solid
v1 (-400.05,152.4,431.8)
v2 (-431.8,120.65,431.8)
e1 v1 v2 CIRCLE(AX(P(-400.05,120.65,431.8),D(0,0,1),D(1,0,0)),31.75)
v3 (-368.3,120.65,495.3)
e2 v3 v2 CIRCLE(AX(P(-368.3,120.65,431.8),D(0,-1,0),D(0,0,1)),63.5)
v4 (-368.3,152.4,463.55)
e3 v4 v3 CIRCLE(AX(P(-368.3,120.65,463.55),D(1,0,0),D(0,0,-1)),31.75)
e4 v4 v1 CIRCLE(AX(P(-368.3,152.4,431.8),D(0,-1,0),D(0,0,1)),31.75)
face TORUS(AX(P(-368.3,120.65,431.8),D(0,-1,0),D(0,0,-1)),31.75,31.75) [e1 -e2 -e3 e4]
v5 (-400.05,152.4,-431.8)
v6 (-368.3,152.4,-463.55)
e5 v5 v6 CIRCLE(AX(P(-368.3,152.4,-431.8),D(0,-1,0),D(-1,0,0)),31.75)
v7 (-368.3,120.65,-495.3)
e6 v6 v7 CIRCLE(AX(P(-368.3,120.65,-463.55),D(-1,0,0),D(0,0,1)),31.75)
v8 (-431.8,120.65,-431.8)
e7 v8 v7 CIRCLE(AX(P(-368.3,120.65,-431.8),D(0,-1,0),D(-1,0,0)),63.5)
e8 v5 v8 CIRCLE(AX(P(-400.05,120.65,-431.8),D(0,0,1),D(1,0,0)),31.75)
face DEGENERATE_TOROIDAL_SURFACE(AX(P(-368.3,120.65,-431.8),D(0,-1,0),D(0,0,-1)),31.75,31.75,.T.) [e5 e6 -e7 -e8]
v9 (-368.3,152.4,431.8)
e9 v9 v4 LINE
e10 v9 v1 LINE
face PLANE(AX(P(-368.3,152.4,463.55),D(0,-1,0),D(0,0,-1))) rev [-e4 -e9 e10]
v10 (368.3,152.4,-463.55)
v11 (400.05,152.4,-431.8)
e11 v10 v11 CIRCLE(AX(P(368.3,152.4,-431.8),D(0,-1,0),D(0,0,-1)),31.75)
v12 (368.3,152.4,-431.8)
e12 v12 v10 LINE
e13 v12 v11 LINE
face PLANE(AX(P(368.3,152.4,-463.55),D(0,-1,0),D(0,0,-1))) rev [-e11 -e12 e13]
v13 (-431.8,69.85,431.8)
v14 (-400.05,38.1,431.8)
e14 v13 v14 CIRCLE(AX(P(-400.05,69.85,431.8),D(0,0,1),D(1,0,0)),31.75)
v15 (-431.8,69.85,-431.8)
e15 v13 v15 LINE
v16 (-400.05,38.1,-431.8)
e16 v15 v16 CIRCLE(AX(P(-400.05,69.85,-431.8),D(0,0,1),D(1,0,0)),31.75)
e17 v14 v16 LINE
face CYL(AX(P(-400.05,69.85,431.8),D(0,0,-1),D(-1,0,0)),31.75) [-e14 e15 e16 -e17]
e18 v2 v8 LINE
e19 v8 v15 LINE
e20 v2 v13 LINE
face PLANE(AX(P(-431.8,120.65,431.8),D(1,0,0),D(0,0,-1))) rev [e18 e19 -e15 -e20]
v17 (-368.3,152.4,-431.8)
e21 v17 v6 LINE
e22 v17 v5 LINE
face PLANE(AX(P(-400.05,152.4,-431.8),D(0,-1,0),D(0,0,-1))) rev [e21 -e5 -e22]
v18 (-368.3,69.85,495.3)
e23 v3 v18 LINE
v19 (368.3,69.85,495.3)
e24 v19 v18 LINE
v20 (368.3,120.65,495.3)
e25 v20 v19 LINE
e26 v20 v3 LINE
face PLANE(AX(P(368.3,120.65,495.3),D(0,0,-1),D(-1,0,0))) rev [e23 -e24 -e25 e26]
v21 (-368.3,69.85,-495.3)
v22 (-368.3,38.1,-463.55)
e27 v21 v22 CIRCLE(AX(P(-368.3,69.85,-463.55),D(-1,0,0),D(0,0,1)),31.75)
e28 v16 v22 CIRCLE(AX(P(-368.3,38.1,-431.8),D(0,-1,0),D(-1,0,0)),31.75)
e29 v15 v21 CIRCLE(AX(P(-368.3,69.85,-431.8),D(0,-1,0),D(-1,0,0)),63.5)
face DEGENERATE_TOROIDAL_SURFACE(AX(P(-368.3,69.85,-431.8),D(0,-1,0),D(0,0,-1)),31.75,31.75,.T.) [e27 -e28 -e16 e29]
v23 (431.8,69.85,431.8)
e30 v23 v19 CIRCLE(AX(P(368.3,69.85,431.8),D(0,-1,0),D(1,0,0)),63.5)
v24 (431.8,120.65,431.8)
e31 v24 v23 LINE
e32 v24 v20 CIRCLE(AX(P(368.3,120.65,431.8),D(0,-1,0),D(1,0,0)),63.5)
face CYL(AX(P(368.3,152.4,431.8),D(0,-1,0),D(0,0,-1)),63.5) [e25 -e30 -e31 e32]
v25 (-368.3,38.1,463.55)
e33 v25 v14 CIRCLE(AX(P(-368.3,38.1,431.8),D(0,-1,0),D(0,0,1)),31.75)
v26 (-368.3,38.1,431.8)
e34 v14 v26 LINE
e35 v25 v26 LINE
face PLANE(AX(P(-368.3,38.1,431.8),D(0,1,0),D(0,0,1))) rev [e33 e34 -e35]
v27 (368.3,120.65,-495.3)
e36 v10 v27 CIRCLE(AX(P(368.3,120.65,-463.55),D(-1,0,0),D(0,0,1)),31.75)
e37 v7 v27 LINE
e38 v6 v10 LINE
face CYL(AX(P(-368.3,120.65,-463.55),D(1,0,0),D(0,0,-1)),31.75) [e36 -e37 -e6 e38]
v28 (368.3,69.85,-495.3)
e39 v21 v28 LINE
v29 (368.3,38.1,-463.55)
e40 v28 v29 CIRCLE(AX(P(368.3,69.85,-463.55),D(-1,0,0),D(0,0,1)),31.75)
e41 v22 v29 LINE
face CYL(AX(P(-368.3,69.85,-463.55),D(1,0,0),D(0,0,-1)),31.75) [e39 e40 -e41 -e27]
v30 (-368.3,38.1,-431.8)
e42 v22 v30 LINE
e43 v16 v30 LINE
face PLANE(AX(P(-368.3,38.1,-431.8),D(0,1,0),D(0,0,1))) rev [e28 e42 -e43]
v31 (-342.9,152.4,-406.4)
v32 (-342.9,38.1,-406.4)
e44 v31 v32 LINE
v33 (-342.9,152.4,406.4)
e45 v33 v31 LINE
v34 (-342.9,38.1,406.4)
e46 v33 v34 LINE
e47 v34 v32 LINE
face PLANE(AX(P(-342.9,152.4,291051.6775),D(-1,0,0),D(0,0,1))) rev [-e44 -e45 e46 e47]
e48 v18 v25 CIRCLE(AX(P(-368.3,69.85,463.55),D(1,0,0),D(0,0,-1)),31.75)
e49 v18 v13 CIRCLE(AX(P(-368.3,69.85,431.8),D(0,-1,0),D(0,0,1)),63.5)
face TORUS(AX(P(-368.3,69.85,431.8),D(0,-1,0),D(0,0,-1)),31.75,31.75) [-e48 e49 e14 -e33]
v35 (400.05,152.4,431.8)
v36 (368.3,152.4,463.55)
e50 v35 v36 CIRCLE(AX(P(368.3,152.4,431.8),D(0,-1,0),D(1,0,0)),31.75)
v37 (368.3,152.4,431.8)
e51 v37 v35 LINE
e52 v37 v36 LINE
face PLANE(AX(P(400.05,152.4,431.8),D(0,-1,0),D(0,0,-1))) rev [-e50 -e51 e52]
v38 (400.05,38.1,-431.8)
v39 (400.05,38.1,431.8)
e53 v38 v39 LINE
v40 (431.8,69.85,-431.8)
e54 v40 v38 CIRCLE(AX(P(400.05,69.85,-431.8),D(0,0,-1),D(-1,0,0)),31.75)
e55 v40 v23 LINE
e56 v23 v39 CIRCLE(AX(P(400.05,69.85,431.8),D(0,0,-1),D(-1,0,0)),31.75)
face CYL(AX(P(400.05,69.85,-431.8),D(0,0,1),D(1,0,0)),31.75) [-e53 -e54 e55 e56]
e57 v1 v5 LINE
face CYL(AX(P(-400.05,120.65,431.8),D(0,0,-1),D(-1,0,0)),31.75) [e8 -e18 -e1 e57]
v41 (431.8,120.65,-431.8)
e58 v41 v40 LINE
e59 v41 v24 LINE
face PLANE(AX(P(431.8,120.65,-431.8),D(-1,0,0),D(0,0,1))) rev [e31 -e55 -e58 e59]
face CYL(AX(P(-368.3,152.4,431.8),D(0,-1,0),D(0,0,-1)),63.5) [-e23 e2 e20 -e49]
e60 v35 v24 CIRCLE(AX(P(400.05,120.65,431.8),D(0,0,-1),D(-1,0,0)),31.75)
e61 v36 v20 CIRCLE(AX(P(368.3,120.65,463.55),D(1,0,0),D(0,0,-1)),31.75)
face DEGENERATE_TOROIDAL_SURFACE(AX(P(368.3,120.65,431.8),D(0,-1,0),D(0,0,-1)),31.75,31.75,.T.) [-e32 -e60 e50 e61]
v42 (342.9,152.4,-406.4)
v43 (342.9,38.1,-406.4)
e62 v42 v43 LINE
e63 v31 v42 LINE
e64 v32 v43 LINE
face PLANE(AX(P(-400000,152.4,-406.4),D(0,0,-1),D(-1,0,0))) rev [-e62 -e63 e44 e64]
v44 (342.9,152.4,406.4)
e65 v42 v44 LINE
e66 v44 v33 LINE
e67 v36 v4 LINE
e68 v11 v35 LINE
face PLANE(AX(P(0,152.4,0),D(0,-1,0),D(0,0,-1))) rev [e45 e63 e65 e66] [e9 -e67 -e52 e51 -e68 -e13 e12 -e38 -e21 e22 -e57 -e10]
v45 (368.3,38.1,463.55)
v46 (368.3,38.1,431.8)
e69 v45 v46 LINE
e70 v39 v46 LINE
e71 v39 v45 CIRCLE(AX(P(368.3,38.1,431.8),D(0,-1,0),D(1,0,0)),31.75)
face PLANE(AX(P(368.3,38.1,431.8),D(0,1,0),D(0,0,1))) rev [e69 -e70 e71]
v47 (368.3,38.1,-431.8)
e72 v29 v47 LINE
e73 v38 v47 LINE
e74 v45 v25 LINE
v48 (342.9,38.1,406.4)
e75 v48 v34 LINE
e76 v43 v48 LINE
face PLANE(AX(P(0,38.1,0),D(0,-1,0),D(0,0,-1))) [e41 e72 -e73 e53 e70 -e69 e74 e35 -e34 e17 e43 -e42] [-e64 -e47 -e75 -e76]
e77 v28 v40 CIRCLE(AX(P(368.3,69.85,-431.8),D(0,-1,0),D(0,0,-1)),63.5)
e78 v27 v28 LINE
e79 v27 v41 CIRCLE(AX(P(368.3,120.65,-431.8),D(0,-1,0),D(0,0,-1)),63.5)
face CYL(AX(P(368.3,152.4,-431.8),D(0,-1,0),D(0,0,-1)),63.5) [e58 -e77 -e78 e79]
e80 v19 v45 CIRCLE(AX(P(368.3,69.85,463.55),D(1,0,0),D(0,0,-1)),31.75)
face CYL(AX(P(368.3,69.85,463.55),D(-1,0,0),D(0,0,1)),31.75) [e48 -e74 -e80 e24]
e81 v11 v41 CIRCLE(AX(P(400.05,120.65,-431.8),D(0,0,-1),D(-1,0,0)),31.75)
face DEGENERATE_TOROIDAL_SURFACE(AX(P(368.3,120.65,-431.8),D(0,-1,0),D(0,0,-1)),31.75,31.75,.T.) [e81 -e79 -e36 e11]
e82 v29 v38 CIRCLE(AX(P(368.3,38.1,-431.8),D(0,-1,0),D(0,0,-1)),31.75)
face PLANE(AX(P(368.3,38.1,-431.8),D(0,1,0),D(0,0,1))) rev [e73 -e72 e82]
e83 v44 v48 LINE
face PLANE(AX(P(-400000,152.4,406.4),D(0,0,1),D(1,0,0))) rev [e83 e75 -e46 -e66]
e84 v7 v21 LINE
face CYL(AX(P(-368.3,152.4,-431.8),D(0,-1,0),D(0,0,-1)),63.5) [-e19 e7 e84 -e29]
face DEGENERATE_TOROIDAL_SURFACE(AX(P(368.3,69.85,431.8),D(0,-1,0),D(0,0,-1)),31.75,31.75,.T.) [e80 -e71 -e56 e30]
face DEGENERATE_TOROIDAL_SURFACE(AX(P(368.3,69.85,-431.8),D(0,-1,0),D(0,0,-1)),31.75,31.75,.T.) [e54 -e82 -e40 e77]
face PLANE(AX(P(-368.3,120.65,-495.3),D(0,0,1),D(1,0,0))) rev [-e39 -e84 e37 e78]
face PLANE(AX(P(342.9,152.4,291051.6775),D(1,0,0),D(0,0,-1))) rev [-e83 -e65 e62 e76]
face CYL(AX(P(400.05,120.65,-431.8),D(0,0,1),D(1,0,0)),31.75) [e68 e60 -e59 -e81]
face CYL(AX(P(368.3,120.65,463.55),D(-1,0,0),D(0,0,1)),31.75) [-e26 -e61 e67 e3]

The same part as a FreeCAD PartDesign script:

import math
import FreeCAD as App
import Part
import Sketcher
Q = App.Units.Quantity


def add_polygon(sketch, points):
    """Adds a closed chain of lines whose ends are joined by coincident constraints."""
    first, n = sketch.GeometryCount, len(points)
    for a, b in zip(points, points[1:] + points[:1]):
        sketch.addGeometry(Part.LineSegment(App.Vector(*a, 0), App.Vector(*b, 0)), False)
    for i in range(n):
        sketch.addConstraint(Sketcher.Constraint("Coincident", first + i, 2, first + (i + 1) % n, 1))

doc = App.newDocument("Part")
params = doc.addObject("Spreadsheet::Sheet", "Params")
for row, (alias, value) in enumerate([
    ("sketch1_width", "29 in"),
    ("sketch1_width2", "27 in"),
    ("sketch1_height", "34 in"),
    ("sketch1_height2", "32 in"),
    ("pad1_length", "4.5 in"),
    ("sketch2_height", "2 in"),
    ("sketch2_radius", "1.25 in"),
    ("sketch2_width", "1.25 in"),
    ("sketch3_radius", "2.5 in"),
    ("sketch3_width", "29 in"),
    ("sketch3_height", "34 in"),
], start=1):
    params.set(f"A{row}", alias)
    params.set(f"B{row}", "=" + value)
    params.setAlias(f"B{row}", alias)

body = doc.addObject("PartDesign::Body", "Body")

# Sketch on XZ plane
sketch1 = body.newObject("Sketcher::SketchObject", "Sketch")
sketch1.AttachmentSupport = (doc.getObject("XZ_Plane"), [""])
sketch1.MapMode = "FlatFace"
sketch1.AttachmentOffset = App.Placement(App.Vector(0, 0, -1.5 * 25.4), App.Rotation())
add_polygon(sketch1, [(-368, -432), (-368, 432), (368, 432), (368, -432)])  # lines 0-3
add_polygon(sketch1, [(343, 406), (-343, 406), (-343, -406), (343, -406)])  # lines 4-7
sketch1.addConstraint([
    Sketcher.Constraint("Vertical", 0),
    Sketcher.Constraint("Horizontal", 1),
    Sketcher.Constraint("Vertical", 2),
    Sketcher.Constraint("Horizontal", 3),
    Sketcher.Constraint("Horizontal", 4),
    Sketcher.Constraint("Vertical", 5),
    Sketcher.Constraint("Horizontal", 6),
    Sketcher.Constraint("Vertical", 7),
    Sketcher.Constraint("Symmetric", 0, 2, 2, 2, -1, 1),
    Sketcher.Constraint("Symmetric", 4, 2, 6, 2, -1, 1),
    Sketcher.Constraint("DistanceX", 1, 1, 1, 2, Q("29 in")),
    Sketcher.Constraint("DistanceX", 4, 2, 4, 1, Q("27 in")),
    Sketcher.Constraint("DistanceY", 0, 1, 0, 2, Q("34 in")),
    Sketcher.Constraint("DistanceY", 5, 2, 5, 1, Q("32 in")),
])
sketch1.setExpression("Constraints[18]", "Params.sketch1_width")
sketch1.setExpression("Constraints[19]", "Params.sketch1_width2")
sketch1.setExpression("Constraints[20]", "Params.sketch1_height")
sketch1.setExpression("Constraints[21]", "Params.sketch1_height2")
pad1 = body.newObject("PartDesign::Pad", "Pad")
pad1.Profile = sketch1
pad1.setExpression("Length", "Params.pad1_length")
pad1.Reversed = True

# Sketch on XY plane
sketch2 = body.newObject("Sketcher::SketchObject", "Sketch001")
sketch2.AttachmentSupport = (doc.getObject("XY_Plane"), [""])
sketch2.MapMode = "FlatFace"
sketch2.AttachmentOffset = App.Placement(App.Vector(0, 0, 17 * 25.4), App.Rotation())
sketch2.addGeometry([
    Part.LineSegment(App.Vector(-368, 152, 0), App.Vector(-400, 152, 0)),  # 0
    Part.ArcOfCircle(Part.Circle(App.Vector(-400, 121, 0), App.Vector(0, 0, 1), 32), math.radians(90), math.radians(180)),  # 1
    Part.LineSegment(App.Vector(-432, 121, 0), App.Vector(-432, 70, 0)),  # 2
    Part.ArcOfCircle(Part.Circle(App.Vector(-400, 70, 0), App.Vector(0, 0, 1), 32), math.radians(180), math.radians(270)),  # 3
    Part.LineSegment(App.Vector(-400, 38, 0), App.Vector(-368, 38, 0)),  # 4
    Part.LineSegment(App.Vector(-368, 38, 0), App.Vector(-368, 152, 0)),  # 5
], False)
sketch2.addConstraint([
    Sketcher.Constraint("Tangent", 0, 2, 1, 1),
    Sketcher.Constraint("Tangent", 1, 2, 2, 1),
    Sketcher.Constraint("Tangent", 2, 2, 3, 1),
    Sketcher.Constraint("Tangent", 3, 2, 4, 1),
    Sketcher.Constraint("Coincident", 4, 2, 5, 1),
    Sketcher.Constraint("Coincident", 5, 2, 0, 1),
    Sketcher.Constraint("Horizontal", 0),
    Sketcher.Constraint("Vertical", 2),
    Sketcher.Constraint("Horizontal", 4),
    Sketcher.Constraint("Vertical", 5),
    Sketcher.Constraint("Equal", 1, 3),
    Sketcher.Constraint("DistanceY", 2, 2, 2, 1, Q("2 in")),
    Sketcher.Constraint("Radius", 1, Q("1.25 in")),
    Sketcher.Constraint("DistanceY", -1, 1, 0, 2, Q("6 in")),
    Sketcher.Constraint("DistanceX", 1, 2, -1, 1, Q("17 in")),
    Sketcher.Constraint("DistanceX", 0, 2, 0, 1, Q("1.25 in")),
])
sketch2.setExpression("Constraints[11]", "Params.sketch2_height")
sketch2.setExpression("Constraints[12]", "Params.sketch2_radius")
sketch2.setExpression("Constraints[15]", "Params.sketch2_width")

# Sketch on XZ plane
sketch3 = body.newObject("Sketcher::SketchObject", "Sketch002")
sketch3.AttachmentSupport = (doc.getObject("XZ_Plane"), [""])
sketch3.MapMode = "FlatFace"
sketch3.AttachmentOffset = App.Placement(App.Vector(0, 0, -6 * 25.4), App.Rotation())
sketch3.addGeometry([
    Part.LineSegment(App.Vector(368, -495, 0), App.Vector(-368, -495, 0)),  # 0
    Part.ArcOfCircle(Part.Circle(App.Vector(-368, -432, 0), App.Vector(0, 0, 1), 64), math.radians(-180), math.radians(-90)),  # 1
    Part.LineSegment(App.Vector(-432, -432, 0), App.Vector(-432, 432, 0)),  # 2
    Part.ArcOfCircle(Part.Circle(App.Vector(-368, 432, 0), App.Vector(0, 0, 1), 64), math.radians(90), math.radians(180)),  # 3
    Part.LineSegment(App.Vector(-368, 495, 0), App.Vector(368, 495, 0)),  # 4
    Part.ArcOfCircle(Part.Circle(App.Vector(368, 432, 0), App.Vector(0, 0, 1), 64), math.radians(0), math.radians(90)),  # 5
    Part.LineSegment(App.Vector(432, 432, 0), App.Vector(432, -432, 0)),  # 6
    Part.ArcOfCircle(Part.Circle(App.Vector(368, -432, 0), App.Vector(0, 0, 1), 64), math.radians(-90), math.radians(0)),  # 7
], False)
sketch3.addConstraint([
    Sketcher.Constraint("Tangent", 0, 2, 1, 2),
    Sketcher.Constraint("Tangent", 1, 1, 2, 1),
    Sketcher.Constraint("Tangent", 2, 2, 3, 2),
    Sketcher.Constraint("Tangent", 3, 1, 4, 1),
    Sketcher.Constraint("Tangent", 4, 2, 5, 2),
    Sketcher.Constraint("Tangent", 5, 1, 6, 1),
    Sketcher.Constraint("Tangent", 6, 2, 7, 2),
    Sketcher.Constraint("Tangent", 7, 1, 0, 1),
    Sketcher.Constraint("Horizontal", 0),
    Sketcher.Constraint("Vertical", 2),
    Sketcher.Constraint("Horizontal", 4),
    Sketcher.Constraint("Vertical", 6),
    Sketcher.Constraint("Equal", 1, 3),
    Sketcher.Constraint("Equal", 3, 5),
    Sketcher.Constraint("Equal", 5, 7),
    Sketcher.Constraint("Symmetric", 1, 3, 5, 3, -1, 1),
    Sketcher.Constraint("Radius", 1, Q("2.5 in")),
    Sketcher.Constraint("DistanceX", 0, 2, 0, 1, Q("29 in")),
    Sketcher.Constraint("DistanceY", 2, 1, 2, 2, Q("34 in")),
])
sketch3.setExpression("Constraints[16]", "Params.sketch3_radius")
sketch3.setExpression("Constraints[17]", "Params.sketch3_width")
sketch3.setExpression("Constraints[18]", "Params.sketch3_height")
doc.recompute()

additivepipe = body.newObject("PartDesign::AdditivePipe", "AdditivePipe")
additivepipe.Profile = sketch2
additivepipe.Spine = (sketch3, ["Edge1", "Edge2", "Edge3", "Edge4", "Edge5", "Edge6", "Edge7", "Edge8"])

doc.recompute()
